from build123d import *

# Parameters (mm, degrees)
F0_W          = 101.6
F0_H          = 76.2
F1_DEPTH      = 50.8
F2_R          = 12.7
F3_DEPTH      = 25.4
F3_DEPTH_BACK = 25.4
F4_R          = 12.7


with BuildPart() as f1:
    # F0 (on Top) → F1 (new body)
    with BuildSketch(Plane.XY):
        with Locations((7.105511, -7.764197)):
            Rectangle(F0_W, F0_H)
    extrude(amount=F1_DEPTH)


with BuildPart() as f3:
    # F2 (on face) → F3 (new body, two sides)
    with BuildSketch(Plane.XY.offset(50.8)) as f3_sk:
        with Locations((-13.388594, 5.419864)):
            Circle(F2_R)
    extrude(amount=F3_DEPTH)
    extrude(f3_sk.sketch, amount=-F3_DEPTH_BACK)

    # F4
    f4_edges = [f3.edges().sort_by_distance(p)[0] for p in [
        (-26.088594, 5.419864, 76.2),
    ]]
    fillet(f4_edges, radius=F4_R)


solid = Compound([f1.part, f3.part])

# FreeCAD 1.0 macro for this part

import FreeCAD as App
import Part
import Sketcher
from FreeCAD import Vector
Q = App.Units.Quantity


def edges_at(feature, points):
    """Names of the edges that pass closest to the given points."""
    edges = feature.Shape.Edges
    near = lambda p: min(range(len(edges)), key=lambda i: edges[i].distToShape(Part.Vertex(*p))[0])
    return sorted({f"Edge{near(p) + 1}" for p in points})


def add_polygon(sketch, points):
    """Adds a closed chain of lines whose ends are joined by coincident constraints."""
    first, n = sketch.GeometryCount, len(points)
    for a, b in zip(points, points[1:] + points[:1]):
        sketch.addGeometry(Part.LineSegment(App.Vector(*a, 0), App.Vector(*b, 0)), False)
    for i in range(n):
        sketch.addConstraint(Sketcher.Constraint("Coincident", first + i, 2, first + (i + 1) % n, 1))

doc = App.newDocument("Part")
params = doc.addObject("Spreadsheet::Sheet", "Params")
for row, (alias, value) in enumerate([
    ("sketch1_width", "4 in"),
    ("sketch1_height", "3 in"),
    ("pad1_length", "2 in"),
    ("sketch2_diameter", "1 in"),
    ("pad2_length", "1 in"),
    ("pad2_length2", "1 in"),
    ("fillet_radius", "0.5 in"),
], start=1):
    params.set(f"A{row}", alias)
    params.set(f"B{row}", "=" + value)
    params.setAlias(f"B{row}", alias)

body = doc.addObject("PartDesign::Body", "Body")

# Sketch on XY plane
sketch1 = body.newObject("Sketcher::SketchObject", "Sketch")
sketch1.AttachmentSupport = (doc.getObject("XY_Plane"), [""])
sketch1.MapMode = "FlatFace"
add_polygon(sketch1, [(-43.694489, 30.335803), (-43.694489, -45.864197), (57.905511, -45.864197), (57.905511, 30.335803)])  # lines 0-3
sketch1.addConstraint(Sketcher.Constraint("Vertical", 0))
sketch1.addConstraint(Sketcher.Constraint("Horizontal", 1))
sketch1.addConstraint(Sketcher.Constraint("Vertical", 2))
sketch1.addConstraint(Sketcher.Constraint("Horizontal", 3))
sketch1.addConstraint(Sketcher.Constraint("DistanceX", 1, 1, 1, 2, Q("4 in")))
sketch1.addConstraint(Sketcher.Constraint("DistanceY", 0, 2, 0, 1, Q("3 in")))
sketch1.addConstraint(Sketcher.Constraint("DistanceX", 0, 2, -1, 1, 43.694489))
sketch1.addConstraint(Sketcher.Constraint("DistanceY", 0, 2, -1, 1, 45.864197))
sketch1.setExpression("Constraints[8]", "Params.sketch1_width")
sketch1.setExpression("Constraints[9]", "Params.sketch1_height")
pad1 = body.newObject("PartDesign::Pad", "Pad")
pad1.Profile = sketch1
pad1.setExpression("Length", "Params.pad1_length")
body2 = doc.addObject("PartDesign::Body", "Body001")

# Sketch on XY plane
sketch2 = body2.newObject("Sketcher::SketchObject", "Sketch001")
sketch2.AttachmentSupport = (doc.getObject("XY_Plane001"), [""])
sketch2.MapMode = "FlatFace"
sketch2.AttachmentOffset = App.Placement(Vector(0, 0, 2 * 25.4), App.Rotation())
sketch2.addGeometry(Part.Circle(Vector(-13.388594, 5.419864, 0), Vector(0, 0, 1), 12.7), False)
sketch2.addConstraint(Sketcher.Constraint("Diameter", 0, Q("1 in")))
sketch2.addConstraint(Sketcher.Constraint("DistanceX", 0, 3, -1, 1, 13.388594))
sketch2.addConstraint(Sketcher.Constraint("DistanceY", -1, 1, 0, 3, 5.419864))
sketch2.setExpression("Constraints[0]", "Params.sketch2_diameter")
pad2 = body2.newObject("PartDesign::Pad", "Pad001")
pad2.Profile = sketch2
pad2.Type = "TwoLengths"
pad2.setExpression("Length", "Params.pad2_length")
pad2.setExpression("Length2", "Params.pad2_length2")
doc.recompute()

fillet = body2.newObject("PartDesign::Fillet", "Fillet")
fillet.Base = (pad2, edges_at(pad2, [(-26.089, 5.42, 76.2)]))
fillet.setExpression("Radius", "Params.fillet_radius")

doc.recompute()
